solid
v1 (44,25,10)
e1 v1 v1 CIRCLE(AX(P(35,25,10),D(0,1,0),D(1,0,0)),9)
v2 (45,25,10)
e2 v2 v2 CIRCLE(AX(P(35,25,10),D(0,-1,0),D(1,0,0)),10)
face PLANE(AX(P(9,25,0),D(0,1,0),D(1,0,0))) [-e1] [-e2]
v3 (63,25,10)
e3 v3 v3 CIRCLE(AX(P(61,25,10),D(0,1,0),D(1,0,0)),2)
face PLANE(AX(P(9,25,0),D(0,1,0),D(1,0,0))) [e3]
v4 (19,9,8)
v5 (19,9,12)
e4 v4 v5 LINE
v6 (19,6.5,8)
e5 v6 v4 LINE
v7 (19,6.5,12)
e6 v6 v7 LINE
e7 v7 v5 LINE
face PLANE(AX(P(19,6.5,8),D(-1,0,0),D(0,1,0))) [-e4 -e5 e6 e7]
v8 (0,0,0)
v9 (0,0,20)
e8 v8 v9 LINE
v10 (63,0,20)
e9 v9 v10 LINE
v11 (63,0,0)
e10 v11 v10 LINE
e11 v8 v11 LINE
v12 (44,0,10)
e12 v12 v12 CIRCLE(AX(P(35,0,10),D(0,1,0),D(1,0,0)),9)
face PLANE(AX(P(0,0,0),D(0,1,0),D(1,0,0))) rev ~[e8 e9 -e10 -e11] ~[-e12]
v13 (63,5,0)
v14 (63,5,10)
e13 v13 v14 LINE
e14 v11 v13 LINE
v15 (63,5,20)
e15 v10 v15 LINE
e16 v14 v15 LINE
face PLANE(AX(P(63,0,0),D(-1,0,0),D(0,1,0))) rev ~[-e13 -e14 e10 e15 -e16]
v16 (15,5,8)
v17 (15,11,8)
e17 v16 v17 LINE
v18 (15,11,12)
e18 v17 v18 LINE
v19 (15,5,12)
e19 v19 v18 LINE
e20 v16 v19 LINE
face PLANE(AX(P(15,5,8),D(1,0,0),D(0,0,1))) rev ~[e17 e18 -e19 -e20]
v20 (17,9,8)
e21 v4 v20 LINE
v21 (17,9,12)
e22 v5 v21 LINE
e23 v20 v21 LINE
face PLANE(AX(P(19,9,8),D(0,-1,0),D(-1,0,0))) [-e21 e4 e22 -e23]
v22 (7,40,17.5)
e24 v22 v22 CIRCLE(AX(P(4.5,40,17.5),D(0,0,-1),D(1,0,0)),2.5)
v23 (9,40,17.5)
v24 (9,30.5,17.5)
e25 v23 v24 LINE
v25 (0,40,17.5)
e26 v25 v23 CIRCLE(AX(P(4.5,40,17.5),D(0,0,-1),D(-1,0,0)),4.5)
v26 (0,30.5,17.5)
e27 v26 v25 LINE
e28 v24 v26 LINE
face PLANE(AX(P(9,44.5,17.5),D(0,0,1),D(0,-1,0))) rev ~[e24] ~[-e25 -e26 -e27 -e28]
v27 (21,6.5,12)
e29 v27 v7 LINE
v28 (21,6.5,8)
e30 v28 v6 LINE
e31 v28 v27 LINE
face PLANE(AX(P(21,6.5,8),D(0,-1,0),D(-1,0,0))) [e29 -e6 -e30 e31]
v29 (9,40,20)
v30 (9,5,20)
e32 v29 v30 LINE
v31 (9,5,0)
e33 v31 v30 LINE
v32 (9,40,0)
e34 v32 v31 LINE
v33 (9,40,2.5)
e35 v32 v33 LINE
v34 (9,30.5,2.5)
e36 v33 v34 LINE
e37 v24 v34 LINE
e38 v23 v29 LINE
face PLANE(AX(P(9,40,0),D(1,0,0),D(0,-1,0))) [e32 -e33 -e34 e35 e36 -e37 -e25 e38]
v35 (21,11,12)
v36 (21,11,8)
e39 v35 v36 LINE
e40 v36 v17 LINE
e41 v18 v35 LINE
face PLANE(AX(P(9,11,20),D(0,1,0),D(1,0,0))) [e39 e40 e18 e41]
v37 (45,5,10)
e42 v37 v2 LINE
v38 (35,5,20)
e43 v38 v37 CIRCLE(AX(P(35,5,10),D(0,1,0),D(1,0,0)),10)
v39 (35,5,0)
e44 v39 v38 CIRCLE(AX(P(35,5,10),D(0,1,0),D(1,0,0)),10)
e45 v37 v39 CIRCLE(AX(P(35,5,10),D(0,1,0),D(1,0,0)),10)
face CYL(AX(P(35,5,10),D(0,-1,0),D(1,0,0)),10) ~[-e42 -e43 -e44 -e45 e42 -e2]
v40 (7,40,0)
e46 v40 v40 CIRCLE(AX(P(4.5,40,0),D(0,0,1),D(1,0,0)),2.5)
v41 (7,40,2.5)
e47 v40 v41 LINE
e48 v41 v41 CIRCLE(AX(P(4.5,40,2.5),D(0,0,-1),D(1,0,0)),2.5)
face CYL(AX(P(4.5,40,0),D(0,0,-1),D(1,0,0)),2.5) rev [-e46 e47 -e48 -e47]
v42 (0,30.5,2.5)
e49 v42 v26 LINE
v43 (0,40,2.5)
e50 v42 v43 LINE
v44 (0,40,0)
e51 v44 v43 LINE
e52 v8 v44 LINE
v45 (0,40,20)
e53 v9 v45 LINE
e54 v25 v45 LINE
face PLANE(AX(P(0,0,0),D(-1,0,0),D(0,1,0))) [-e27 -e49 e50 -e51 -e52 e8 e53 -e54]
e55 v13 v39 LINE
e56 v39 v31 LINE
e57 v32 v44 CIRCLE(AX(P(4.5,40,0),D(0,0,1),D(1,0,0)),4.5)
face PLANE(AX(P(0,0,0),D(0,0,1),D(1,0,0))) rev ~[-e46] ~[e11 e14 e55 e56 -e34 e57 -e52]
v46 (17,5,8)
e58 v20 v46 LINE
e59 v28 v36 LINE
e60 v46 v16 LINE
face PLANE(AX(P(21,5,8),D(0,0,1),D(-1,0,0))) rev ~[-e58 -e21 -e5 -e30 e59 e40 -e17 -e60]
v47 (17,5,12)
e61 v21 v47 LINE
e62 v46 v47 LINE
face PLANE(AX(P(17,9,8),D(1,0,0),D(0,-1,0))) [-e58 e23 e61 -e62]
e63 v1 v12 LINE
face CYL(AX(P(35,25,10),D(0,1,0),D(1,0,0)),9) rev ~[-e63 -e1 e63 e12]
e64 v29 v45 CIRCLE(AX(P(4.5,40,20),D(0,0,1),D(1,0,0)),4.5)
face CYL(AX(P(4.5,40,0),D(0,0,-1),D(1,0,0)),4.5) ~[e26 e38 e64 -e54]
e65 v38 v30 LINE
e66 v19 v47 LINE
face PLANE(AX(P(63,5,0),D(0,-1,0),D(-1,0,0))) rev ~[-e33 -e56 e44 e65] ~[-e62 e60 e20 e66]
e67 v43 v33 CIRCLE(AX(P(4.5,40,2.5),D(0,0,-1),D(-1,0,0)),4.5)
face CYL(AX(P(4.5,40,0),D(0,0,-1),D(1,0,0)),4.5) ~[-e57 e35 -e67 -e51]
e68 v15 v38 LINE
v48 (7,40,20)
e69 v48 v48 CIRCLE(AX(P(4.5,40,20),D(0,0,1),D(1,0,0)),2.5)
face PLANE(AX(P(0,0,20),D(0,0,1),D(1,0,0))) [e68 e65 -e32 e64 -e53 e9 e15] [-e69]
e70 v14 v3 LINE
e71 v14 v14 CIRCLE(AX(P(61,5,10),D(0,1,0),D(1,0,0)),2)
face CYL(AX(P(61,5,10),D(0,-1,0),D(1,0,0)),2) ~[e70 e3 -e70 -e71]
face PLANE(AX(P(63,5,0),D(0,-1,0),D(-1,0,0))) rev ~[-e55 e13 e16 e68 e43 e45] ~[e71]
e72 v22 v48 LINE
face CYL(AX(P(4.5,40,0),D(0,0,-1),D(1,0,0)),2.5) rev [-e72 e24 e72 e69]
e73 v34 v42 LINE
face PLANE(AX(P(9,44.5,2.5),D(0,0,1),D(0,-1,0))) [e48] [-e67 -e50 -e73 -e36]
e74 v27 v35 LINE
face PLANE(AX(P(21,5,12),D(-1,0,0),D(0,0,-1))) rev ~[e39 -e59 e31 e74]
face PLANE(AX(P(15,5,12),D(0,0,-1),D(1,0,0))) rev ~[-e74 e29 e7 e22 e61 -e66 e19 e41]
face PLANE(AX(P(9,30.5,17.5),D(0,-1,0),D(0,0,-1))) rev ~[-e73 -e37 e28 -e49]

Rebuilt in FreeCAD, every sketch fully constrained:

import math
import FreeCAD as App
import Part
import Sketcher
from FreeCAD import Vector
Q = App.Units.Quantity


def add_polygon(sketch, points):
    """Adds a closed chain of lines whose ends are joined by coincident constraints."""
    first, n = sketch.GeometryCount, len(points)
    for a, b in zip(points, points[1:] + points[:1]):
        sketch.addGeometry(Part.LineSegment(App.Vector(*a, 0), App.Vector(*b, 0)), False)
    for i in range(n):
        sketch.addConstraint(Sketcher.Constraint("Coincident", first + i, 2, first + (i + 1) % n, 1))

doc = App.newDocument("Part")
body = doc.addObject("PartDesign::Body", "Body")

# Sketch on XY plane
sketch1 = body.newObject("Sketcher::SketchObject", "Sketch")
sketch1.AttachmentSupport = (doc.getObject("XY_Plane"), [""])
sketch1.MapMode = "FlatFace"
sketch1.addGeometry([
    Part.LineSegment(Vector(0, 40, 0), Vector(0, 0, 0)),  # 0
    Part.LineSegment(Vector(0, 0, 0), Vector(63, 0, 0)),  # 1
    Part.LineSegment(Vector(63, 0, 0), Vector(63, 5, 0)),  # 2
    Part.LineSegment(Vector(63, 5, 0), Vector(9, 5, 0)),  # 3
    Part.LineSegment(Vector(9, 5, 0), Vector(9, 40, 0)),  # 4
    Part.ArcOfCircle(Part.Circle(Vector(4.5, 40, 0), Vector(0, 0, 1), 4.5), math.radians(0), math.radians(180)),  # 5
    Part.Circle(Vector(4.5, 40, 0), Vector(0, 0, 1), 2.5),  # 6
], False)
sketch1.addConstraint([
    Sketcher.Constraint("Coincident", 0, 2, 1, 1),
    Sketcher.Constraint("Coincident", 1, 2, 2, 1),
    Sketcher.Constraint("Coincident", 2, 2, 3, 1),
    Sketcher.Constraint("Coincident", 3, 2, 4, 1),
    Sketcher.Constraint("Tangent", 4, 2, 5, 1),
    Sketcher.Constraint("Tangent", 5, 2, 0, 1),
    Sketcher.Constraint("Vertical", 0),
    Sketcher.Constraint("Horizontal", 1),
    Sketcher.Constraint("Vertical", 2),
    Sketcher.Constraint("Horizontal", 3),
    Sketcher.Constraint("Vertical", 4),
    Sketcher.Constraint("Coincident", 0, 2, -1, 1),
    Sketcher.Constraint("Coincident", 6, 3, 5, 3),
    Sketcher.Constraint("Diameter", 6, Q("5 mm")),
    Sketcher.Constraint("Radius", 5, Q("4.5 mm")),
    Sketcher.Constraint("DistanceX", 3, 2, 3, 1, Q("54 mm")),
    Sketcher.Constraint("DistanceY", 0, 2, 0, 1, Q("40 mm")),
    Sketcher.Constraint("DistanceY", 2, 1, 2, 2, Q("5 mm")),
])
pad1 = body.newObject("PartDesign::Pad", "Pad")
pad1.Profile = sketch1
pad1.Length = 20

# Sketch on YZ plane
sketch2 = body.newObject("Sketcher::SketchObject", "Sketch001")
sketch2.AttachmentSupport = (doc.getObject("YZ_Plane"), [""])
sketch2.MapMode = "FlatFace"
sketch2.AttachmentOffset = App.Placement(Vector(0, 0, 9), App.Rotation())
add_polygon(sketch2, [(44, 2), (44, 18), (30, 18), (30, 2)])  # lines 0-3
sketch2.addConstraint([
    Sketcher.Constraint("Vertical", 0),
    Sketcher.Constraint("Horizontal", 1),
    Sketcher.Constraint("Vertical", 2),
    Sketcher.Constraint("Horizontal", 3),
    Sketcher.Constraint("DistanceX", 1, 2, 1, 1, Q("14 mm")),
    Sketcher.Constraint("DistanceY", 0, 1, 0, 2, Q("15 mm")),
    Sketcher.Constraint("DistanceX", -1, 1, 0, 2, Q("44.5 mm")),
    Sketcher.Constraint("DistanceY", -1, 1, 0, 2, Q("17.5 mm")),
])
pocket1 = body.newObject("PartDesign::Pocket", "Pocket")
pocket1.Profile = sketch2
pocket1.Length = 14

# Sketch on XZ plane
sketch3 = body.newObject("Sketcher::SketchObject", "Sketch002")
sketch3.AttachmentSupport = (doc.getObject("XZ_Plane"), [""])
sketch3.MapMode = "FlatFace"
sketch3.AttachmentOffset = App.Placement(Vector(0, 0, -5), App.Rotation())
sketch3.addGeometry([
    Part.Circle(Vector(35, 10, 0), Vector(0, 0, 1), 10),
    Part.Circle(Vector(61, 10, 0), Vector(0, 0, 1), 2),
], False)
sketch3.addConstraint([
    Sketcher.Constraint("Horizontal", 0, 3, 1, 3),
    Sketcher.Constraint("Diameter", 0, Q("20 mm")),
    Sketcher.Constraint("Diameter", 1, Q("4 mm")),
    Sketcher.Constraint("DistanceY", -1, 1, 0, 3, Q("10 mm")),
    Sketcher.Constraint("DistanceX", 0, 3, 1, 3, Q("26 mm")),
    Sketcher.Constraint("DistanceX", -1, 1, 0, 3, Q("35 mm")),
])
pad2 = body.newObject("PartDesign::Pad", "Pad001")
pad2.Profile = sketch3
pad2.Length = 20
pad2.Reversed = True

# Sketch on XZ plane
sketch4 = body.newObject("Sketcher::SketchObject", "Sketch003")
sketch4.AttachmentSupport = (doc.getObject("XZ_Plane"), [""])
sketch4.MapMode = "FlatFace"
sketch4.AttachmentOffset = App.Placement(Vector(0, 0, -25), App.Rotation())
sketch4.addGeometry(Part.Circle(Vector(35, 10, 0), Vector(0, 0, 1), 9), False)
sketch4.addConstraint([
    Sketcher.Constraint("Diameter", 0, Q("18 mm")),
    Sketcher.Constraint("DistanceX", -1, 1, 0, 3, Q("35 mm")),
    Sketcher.Constraint("DistanceY", -1, 1, 0, 3, Q("10 mm")),
])
pocket2 = body.newObject("PartDesign::Pocket", "Pocket001")
pocket2.Profile = sketch4
pocket2.Length = 25
pocket2.Reversed = True

# Sketch on XZ plane
sketch5 = body.newObject("Sketcher::SketchObject", "Sketch004")
sketch5.AttachmentSupport = (doc.getObject("XZ_Plane"), [""])
sketch5.MapMode = "FlatFace"
sketch5.AttachmentOffset = App.Placement(Vector(0, 0, -5), App.Rotation())
add_polygon(sketch5, [(15, 8), (15, 12), (21, 12), (21, 8)])  # lines 0-3
sketch5.addConstraint([
    Sketcher.Constraint("Vertical", 0),
    Sketcher.Constraint("Horizontal", 1),
    Sketcher.Constraint("Vertical", 2),
    Sketcher.Constraint("Horizontal", 3),
    Sketcher.Constraint("DistanceX", 1, 1, 1, 2, Q("6 mm")),
    Sketcher.Constraint("DistanceY", 0, 1, 0, 2, Q("4 mm")),
    Sketcher.Constraint("DistanceY", -1, 1, 2, 2, Q("8 mm")),
    Sketcher.Constraint("DistanceX", -1, 1, 0, 2, Q("15 mm")),
])
pad3 = body.newObject("PartDesign::Pad", "Pad002")
pad3.Profile = sketch5
pad3.Length = 6
pad3.Reversed = True

# Sketch on XY plane
sketch6 = body.newObject("Sketcher::SketchObject", "Sketch005")
sketch6.AttachmentSupport = (doc.getObject("XY_Plane"), [""])
sketch6.MapMode = "FlatFace"
sketch6.AttachmentOffset = App.Placement(Vector(0, 0, 8), App.Rotation())
add_polygon(sketch6, [(17, 9), (19, 9), (19, 6.5), (21, 6.5), (21, 5), (17, 5)])  # lines 0-5
sketch6.addConstraint([
    Sketcher.Constraint("Horizontal", 0),
    Sketcher.Constraint("Vertical", 1),
    Sketcher.Constraint("Horizontal", 2),
    Sketcher.Constraint("Vertical", 3),
    Sketcher.Constraint("Horizontal", 4),
    Sketcher.Constraint("Vertical", 5),
    Sketcher.Constraint("Equal", 0, 2),
    Sketcher.Constraint("Equal", 4, 5),
    Sketcher.Constraint("DistanceX", 0, 1, 0, 2, Q("2 mm")),
    Sketcher.Constraint("DistanceY", 3, 2, 3, 1, Q("1.5 mm")),
    Sketcher.Constraint("DistanceX", -1, 1, 0, 2, Q("19 mm")),
    Sketcher.Constraint("DistanceY", -1, 1, 0, 2, Q("9 mm")),
])
pocket3 = body.newObject("PartDesign::Pocket", "Pocket002")
pocket3.Profile = sketch6
pocket3.Length = 4
pocket3.Reversed = True

doc.recompute()
